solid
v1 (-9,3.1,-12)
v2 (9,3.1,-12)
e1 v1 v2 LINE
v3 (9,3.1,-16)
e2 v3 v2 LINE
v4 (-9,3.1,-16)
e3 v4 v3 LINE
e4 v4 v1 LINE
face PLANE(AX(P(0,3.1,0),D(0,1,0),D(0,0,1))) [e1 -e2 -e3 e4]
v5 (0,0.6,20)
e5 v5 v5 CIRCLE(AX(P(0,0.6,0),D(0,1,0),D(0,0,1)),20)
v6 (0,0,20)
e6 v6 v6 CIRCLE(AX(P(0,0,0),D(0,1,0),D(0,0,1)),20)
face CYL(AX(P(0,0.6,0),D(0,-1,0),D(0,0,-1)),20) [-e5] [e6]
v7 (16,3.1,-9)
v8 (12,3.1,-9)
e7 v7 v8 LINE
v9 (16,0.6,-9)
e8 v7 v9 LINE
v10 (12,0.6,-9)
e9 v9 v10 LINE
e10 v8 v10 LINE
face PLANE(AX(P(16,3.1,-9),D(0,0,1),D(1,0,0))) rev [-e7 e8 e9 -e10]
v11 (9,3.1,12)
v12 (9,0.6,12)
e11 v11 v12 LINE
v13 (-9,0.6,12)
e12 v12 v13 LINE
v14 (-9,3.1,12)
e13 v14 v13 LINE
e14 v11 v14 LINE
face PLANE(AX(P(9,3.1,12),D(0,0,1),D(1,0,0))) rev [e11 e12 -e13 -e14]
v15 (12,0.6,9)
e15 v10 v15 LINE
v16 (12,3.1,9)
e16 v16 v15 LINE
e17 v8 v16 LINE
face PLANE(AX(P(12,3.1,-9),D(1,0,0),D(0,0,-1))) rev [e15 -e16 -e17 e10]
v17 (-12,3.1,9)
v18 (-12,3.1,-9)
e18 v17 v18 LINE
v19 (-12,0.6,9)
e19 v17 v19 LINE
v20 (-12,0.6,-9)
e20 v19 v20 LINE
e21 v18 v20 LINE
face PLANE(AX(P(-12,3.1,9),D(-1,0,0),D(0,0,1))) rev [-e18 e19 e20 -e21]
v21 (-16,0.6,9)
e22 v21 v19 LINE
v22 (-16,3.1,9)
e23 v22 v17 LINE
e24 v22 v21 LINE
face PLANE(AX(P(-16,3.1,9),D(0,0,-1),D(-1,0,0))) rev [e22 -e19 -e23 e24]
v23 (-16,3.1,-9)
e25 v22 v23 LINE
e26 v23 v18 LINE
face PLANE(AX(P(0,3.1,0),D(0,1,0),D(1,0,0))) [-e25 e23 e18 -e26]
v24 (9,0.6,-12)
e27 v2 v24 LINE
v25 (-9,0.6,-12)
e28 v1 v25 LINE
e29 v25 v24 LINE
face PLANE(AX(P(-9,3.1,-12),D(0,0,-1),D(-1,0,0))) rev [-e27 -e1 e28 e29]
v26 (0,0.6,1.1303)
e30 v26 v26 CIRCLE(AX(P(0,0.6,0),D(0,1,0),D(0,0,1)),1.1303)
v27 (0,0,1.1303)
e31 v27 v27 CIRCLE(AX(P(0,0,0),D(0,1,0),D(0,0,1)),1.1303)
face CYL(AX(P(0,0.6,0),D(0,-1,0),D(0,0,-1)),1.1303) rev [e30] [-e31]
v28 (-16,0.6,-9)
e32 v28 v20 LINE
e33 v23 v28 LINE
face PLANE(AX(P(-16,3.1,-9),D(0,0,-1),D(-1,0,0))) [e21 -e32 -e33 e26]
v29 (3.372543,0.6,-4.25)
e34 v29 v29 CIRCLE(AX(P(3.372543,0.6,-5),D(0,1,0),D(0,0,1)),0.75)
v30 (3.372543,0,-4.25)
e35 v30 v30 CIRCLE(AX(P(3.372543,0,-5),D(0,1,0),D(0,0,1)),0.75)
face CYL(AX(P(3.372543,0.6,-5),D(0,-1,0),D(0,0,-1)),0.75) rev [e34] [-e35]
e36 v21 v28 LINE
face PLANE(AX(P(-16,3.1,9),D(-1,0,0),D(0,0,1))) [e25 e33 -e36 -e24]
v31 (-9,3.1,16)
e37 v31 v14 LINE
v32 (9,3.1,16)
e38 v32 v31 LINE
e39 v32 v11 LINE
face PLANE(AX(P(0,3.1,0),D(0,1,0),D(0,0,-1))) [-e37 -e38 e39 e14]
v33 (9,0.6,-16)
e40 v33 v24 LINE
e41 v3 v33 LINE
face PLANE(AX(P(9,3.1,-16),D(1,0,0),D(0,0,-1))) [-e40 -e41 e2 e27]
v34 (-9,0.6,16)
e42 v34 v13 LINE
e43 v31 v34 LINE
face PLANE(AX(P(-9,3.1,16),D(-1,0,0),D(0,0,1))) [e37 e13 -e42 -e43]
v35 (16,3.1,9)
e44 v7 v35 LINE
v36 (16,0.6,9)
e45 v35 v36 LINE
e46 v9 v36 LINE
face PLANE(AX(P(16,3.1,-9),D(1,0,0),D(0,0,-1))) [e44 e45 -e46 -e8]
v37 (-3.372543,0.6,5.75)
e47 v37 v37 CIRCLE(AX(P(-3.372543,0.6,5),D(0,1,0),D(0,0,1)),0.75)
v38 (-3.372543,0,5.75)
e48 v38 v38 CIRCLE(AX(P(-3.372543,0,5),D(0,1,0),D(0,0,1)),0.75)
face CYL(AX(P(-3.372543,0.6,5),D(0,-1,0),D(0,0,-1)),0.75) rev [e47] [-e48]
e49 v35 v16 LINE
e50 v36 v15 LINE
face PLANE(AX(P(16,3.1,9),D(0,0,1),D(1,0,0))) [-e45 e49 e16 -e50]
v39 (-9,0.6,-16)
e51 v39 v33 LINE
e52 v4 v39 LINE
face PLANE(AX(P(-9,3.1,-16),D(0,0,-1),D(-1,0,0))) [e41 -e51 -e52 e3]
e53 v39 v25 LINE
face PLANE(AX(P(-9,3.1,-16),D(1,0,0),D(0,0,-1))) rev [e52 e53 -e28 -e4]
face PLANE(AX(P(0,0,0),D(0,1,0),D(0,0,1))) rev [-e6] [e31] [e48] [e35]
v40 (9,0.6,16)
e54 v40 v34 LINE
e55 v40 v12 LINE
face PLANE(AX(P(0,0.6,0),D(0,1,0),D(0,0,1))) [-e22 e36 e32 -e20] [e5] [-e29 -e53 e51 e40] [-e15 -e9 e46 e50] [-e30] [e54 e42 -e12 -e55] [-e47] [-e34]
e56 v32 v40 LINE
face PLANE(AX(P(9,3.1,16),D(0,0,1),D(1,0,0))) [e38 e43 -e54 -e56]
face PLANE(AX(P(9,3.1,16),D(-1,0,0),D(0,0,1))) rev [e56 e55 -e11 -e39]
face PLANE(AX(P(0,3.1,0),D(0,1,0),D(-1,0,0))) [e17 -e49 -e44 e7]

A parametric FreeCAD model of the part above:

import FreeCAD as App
import Part
import Sketcher

V = App.Vector

doc = App.newDocument("Part")
body = doc.addObject("PartDesign::Body", "Body")

sketch1 = doc.addObject("Sketcher::SketchObject", "Sketch")
body.addObject(sketch1)
sketch1.AttachmentSupport = (doc.XZ_Plane, [""])
sketch1.MapMode = "FlatFace"
sketch1.addGeometry([
    Part.Circle(V(0, 0, 0), V(0, 0, 1), 20),
    Part.Circle(V(-3.4, 5, 0), V(0, 0, 1), 0.8),
    Part.Circle(V(0, 0, 0), V(0, 0, 1), 1.1),
    Part.Circle(V(3.4, -5, 0), V(0, 0, 1), 0.8),
], False)
sketch1.addConstraint([
    Sketcher.Constraint("Coincident", 0, 3, -1, 1),
    Sketcher.Constraint("Coincident", 2, 3, -1, 1),
    Sketcher.Constraint("Equal", 1, 3),
    Sketcher.Constraint("Symmetric", 1, 3, 3, 3, -1, 1),
    Sketcher.Constraint("Diameter", 0, 40.0),
    Sketcher.Constraint("Diameter", 1, 1.5),
    Sketcher.Constraint("DistanceY", -1, 1, 1, 3, 5.0),
    Sketcher.Constraint("Diameter", 2, 2.2606),
    Sketcher.Constraint("DistanceX", 1, 3, -1, 1, 3.372543),
])
pad1 = doc.addObject("PartDesign::Pad", "Pad")
body.addObject(pad1)
pad1.Profile = sketch1
pad1.Length = 0.6
pad1.Reversed = True

sketch2 = doc.addObject("Sketcher::SketchObject", "Sketch001")
body.addObject(sketch2)
sketch2.AttachmentSupport = (doc.XZ_Plane, [""])
sketch2.MapMode = "FlatFace"
sketch2.AttachmentOffset = App.Placement(V(0, 0, -0.6), App.Rotation())
sketch2.addGeometry([
    Part.LineSegment(V(-9, -16, 0), V(-9, -12, 0)),
    Part.LineSegment(V(-9, -12, 0), V(9, -12, 0)),
    Part.LineSegment(V(9, -12, 0), V(9, -16, 0)),
    Part.LineSegment(V(9, -16, 0), V(-9, -16, 0)),
], False)
sketch2.addConstraint([
    Sketcher.Constraint("Coincident", 0, 2, 1, 1),
    Sketcher.Constraint("Coincident", 1, 2, 2, 1),
    Sketcher.Constraint("Coincident", 2, 2, 3, 1),
    Sketcher.Constraint("Coincident", 3, 2, 0, 1),
    Sketcher.Constraint("Vertical", 0),
    Sketcher.Constraint("Horizontal", 1),
    Sketcher.Constraint("Vertical", 2),
    Sketcher.Constraint("Horizontal", 3),
    Sketcher.Constraint("DistanceX", 1, 1, 1, 2, 18.0),
    Sketcher.Constraint("DistanceY", 0, 1, 0, 2, 4.0),
    Sketcher.Constraint("DistanceX", 0, 2, -1, 1, 9.0),
    Sketcher.Constraint("DistanceY", 0, 2, -1, 1, 12.0),
])
pad2 = doc.addObject("PartDesign::Pad", "Pad001")
body.addObject(pad2)
pad2.Profile = sketch2
pad2.Length = 2.5
pad2.Reversed = True
doc.recompute()

polarpattern = doc.addObject("PartDesign::PolarPattern", "PolarPattern")
body.addObject(polarpattern)
polarpattern.Originals = [pad2]
polarpattern.Axis = (doc.Y_Axis, [""])
polarpattern.Angle = 360
polarpattern.Occurrences = 4
body.Tip = polarpattern

doc.recompute()
